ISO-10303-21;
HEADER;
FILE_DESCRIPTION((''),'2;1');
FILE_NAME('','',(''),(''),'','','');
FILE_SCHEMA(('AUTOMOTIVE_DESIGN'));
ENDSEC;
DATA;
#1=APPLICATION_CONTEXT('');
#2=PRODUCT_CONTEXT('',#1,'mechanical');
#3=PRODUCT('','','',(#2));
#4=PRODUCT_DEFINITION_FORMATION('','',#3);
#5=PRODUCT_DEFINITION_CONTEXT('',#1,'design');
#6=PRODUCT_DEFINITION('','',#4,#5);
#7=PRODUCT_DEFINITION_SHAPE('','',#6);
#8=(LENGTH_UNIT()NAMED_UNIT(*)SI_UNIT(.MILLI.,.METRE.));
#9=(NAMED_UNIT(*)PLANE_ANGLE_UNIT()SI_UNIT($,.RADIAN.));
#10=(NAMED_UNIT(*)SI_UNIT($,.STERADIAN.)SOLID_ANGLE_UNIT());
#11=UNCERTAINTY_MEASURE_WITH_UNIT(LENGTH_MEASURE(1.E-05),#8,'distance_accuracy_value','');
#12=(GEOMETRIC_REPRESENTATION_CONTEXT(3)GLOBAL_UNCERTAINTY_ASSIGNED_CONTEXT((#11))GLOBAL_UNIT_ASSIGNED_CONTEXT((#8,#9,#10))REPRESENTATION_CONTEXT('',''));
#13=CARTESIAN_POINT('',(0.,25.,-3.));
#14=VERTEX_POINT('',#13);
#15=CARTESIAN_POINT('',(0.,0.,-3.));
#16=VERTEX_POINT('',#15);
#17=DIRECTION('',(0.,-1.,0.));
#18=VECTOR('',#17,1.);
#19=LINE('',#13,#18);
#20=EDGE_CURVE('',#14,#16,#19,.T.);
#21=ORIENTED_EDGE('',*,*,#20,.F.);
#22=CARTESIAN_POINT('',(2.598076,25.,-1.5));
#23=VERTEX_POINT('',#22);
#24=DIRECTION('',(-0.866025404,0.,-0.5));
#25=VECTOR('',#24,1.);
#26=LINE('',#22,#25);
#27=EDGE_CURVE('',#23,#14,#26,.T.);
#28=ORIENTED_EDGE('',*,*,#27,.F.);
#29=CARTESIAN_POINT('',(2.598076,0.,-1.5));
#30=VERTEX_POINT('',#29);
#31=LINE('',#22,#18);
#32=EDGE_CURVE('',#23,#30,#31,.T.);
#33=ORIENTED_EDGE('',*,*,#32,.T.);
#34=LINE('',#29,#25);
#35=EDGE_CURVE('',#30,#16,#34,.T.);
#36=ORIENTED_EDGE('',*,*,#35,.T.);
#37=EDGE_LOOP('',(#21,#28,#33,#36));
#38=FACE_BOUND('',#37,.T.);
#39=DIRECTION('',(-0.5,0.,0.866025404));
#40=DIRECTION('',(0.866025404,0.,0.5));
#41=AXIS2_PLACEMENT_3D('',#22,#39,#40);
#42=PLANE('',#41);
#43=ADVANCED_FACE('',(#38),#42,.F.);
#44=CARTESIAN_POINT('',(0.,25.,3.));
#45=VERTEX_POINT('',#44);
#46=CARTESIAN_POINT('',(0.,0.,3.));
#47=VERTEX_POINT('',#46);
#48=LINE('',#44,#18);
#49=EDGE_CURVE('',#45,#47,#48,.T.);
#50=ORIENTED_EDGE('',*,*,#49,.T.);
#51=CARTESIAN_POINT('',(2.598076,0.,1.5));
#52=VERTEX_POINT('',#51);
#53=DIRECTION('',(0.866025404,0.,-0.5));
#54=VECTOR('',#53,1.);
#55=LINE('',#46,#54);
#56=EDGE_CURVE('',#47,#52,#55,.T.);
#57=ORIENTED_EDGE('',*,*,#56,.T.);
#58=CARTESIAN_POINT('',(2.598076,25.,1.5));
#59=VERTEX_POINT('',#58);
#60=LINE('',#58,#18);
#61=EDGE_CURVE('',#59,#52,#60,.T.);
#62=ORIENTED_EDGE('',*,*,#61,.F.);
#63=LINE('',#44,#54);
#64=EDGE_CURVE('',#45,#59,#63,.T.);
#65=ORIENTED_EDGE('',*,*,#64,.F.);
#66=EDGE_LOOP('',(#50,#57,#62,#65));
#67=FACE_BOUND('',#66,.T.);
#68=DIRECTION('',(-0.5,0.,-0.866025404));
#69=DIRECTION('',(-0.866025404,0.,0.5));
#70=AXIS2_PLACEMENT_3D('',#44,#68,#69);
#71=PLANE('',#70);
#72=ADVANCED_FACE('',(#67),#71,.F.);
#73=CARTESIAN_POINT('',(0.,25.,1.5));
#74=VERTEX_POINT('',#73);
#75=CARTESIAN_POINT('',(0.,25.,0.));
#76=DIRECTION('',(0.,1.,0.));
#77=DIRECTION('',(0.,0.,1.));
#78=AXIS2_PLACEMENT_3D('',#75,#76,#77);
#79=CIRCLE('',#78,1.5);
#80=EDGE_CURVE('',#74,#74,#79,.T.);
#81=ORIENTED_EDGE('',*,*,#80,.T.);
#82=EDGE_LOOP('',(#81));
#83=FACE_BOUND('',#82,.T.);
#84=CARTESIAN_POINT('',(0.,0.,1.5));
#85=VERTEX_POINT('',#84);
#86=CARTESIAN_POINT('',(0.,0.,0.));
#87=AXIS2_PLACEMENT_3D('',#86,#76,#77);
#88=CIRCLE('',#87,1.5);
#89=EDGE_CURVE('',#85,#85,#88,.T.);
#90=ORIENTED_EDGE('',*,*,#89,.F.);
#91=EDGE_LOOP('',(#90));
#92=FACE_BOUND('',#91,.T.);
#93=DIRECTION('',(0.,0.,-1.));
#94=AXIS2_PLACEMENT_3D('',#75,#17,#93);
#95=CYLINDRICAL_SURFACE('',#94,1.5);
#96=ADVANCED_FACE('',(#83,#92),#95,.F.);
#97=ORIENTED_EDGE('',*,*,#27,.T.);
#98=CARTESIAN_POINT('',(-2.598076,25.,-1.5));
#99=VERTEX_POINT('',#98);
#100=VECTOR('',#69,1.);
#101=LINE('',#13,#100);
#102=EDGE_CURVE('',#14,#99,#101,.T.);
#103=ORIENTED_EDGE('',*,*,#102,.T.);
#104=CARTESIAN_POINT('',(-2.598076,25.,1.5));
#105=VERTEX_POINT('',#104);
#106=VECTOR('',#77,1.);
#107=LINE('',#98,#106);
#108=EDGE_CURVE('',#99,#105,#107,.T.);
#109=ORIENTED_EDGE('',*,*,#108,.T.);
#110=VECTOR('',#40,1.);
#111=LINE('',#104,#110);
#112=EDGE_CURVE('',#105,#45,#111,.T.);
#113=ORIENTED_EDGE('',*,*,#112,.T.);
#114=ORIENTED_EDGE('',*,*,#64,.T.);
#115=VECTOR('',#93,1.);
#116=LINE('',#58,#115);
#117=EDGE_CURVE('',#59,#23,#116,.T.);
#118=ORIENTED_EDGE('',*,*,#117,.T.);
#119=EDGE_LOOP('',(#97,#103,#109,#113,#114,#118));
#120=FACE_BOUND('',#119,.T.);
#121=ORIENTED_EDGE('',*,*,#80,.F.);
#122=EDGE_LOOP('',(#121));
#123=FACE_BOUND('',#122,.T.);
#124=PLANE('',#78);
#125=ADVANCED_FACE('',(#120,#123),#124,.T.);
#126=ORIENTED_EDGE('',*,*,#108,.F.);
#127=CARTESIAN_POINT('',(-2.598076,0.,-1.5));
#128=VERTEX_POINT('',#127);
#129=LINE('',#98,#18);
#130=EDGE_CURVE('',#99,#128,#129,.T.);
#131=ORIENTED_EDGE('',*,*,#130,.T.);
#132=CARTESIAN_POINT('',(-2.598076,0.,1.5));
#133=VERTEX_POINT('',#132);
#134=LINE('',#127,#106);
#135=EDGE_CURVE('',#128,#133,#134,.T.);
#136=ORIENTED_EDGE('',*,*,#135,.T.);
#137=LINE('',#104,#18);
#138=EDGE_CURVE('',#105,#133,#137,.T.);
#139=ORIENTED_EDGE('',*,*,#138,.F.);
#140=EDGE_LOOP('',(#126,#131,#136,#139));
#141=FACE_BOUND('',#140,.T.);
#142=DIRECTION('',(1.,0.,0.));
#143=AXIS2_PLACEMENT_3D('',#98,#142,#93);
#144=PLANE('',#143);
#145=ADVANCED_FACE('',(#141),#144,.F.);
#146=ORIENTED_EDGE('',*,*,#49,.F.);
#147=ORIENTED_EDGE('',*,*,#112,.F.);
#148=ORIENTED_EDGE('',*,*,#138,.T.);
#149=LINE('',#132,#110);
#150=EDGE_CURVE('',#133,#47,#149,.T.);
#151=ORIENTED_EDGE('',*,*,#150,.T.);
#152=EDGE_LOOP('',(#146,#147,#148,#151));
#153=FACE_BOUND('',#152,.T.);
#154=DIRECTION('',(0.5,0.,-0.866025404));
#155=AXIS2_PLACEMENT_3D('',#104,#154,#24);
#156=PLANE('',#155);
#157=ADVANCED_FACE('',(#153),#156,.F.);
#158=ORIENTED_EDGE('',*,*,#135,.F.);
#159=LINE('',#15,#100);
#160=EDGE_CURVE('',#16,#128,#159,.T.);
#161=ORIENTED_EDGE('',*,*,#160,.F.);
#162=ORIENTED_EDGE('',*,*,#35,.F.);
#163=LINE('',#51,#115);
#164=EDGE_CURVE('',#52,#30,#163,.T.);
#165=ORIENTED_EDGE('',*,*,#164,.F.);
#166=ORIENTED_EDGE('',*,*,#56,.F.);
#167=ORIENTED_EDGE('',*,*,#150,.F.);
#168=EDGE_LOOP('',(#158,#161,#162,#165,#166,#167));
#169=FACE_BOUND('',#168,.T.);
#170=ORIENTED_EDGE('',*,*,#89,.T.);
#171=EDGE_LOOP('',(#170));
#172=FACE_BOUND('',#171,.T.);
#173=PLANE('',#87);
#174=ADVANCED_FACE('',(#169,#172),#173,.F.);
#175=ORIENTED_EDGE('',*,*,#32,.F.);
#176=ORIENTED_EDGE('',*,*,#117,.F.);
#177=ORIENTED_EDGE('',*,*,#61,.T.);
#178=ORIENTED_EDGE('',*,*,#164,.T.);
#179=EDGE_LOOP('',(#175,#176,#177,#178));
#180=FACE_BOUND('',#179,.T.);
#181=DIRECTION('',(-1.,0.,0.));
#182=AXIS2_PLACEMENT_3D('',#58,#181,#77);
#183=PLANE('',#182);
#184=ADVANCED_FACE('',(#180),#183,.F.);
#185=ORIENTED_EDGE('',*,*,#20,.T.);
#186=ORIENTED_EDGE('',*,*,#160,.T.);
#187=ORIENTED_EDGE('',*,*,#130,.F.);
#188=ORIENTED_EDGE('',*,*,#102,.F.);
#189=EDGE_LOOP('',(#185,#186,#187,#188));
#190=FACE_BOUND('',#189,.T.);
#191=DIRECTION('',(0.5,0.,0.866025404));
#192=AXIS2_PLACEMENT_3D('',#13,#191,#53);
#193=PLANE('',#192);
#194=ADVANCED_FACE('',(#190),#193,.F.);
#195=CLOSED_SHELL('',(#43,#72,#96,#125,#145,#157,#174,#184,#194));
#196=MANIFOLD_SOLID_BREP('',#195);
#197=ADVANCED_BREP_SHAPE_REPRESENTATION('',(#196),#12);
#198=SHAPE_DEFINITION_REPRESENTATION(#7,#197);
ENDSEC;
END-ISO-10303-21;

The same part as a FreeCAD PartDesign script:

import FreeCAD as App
import Part
import Sketcher

V = App.Vector
Q = App.Units.Quantity

doc = App.newDocument("Part")
body = doc.addObject("PartDesign::Body", "Body")

# Sketch on XZ plane
sketch1 = body.newObject("Sketcher::SketchObject", "Sketch")
sketch1.AttachmentSupport = (doc.getObject("XZ_Plane"), [""])
sketch1.MapMode = "FlatFace"
sketch1.addGeometry([
    Part.LineSegment(V(0, -3, 0), V(-2.6, -1.5, 0)),  # 0
    Part.LineSegment(V(-2.6, -1.5, 0), V(-2.6, 1.5, 0)),  # 1
    Part.LineSegment(V(-2.6, 1.5, 0), V(0, 3, 0)),  # 2
    Part.LineSegment(V(0, 3, 0), V(2.6, 1.5, 0)),  # 3
    Part.LineSegment(V(2.6, 1.5, 0), V(2.6, -1.5, 0)),  # 4
    Part.LineSegment(V(2.6, -1.5, 0), V(0, -3, 0)),  # 5
    Part.Circle(V(0, 0, 0), V(0, 0, 1), 1.5),  # 6
], False)
sketch1.addConstraint([
    Sketcher.Constraint("Coincident", 0, 2, 1, 1),
    Sketcher.Constraint("Coincident", 1, 2, 2, 1),
    Sketcher.Constraint("Coincident", 2, 2, 3, 1),
    Sketcher.Constraint("Coincident", 3, 2, 4, 1),
    Sketcher.Constraint("Coincident", 4, 2, 5, 1),
    Sketcher.Constraint("Coincident", 5, 2, 0, 1),
    Sketcher.Constraint("Vertical", 1),
    Sketcher.Constraint("Vertical", 4),
    Sketcher.Constraint("Coincident", 6, 3, -1, 1),
    Sketcher.Constraint("Symmetric", 0, 2, 3, 2, -1, 1),
    Sketcher.Constraint("Symmetric", 2, 2, 5, 2, -1, 1),
    Sketcher.Constraint("PointOnObject", 2, 2, -2),
    Sketcher.Constraint("Parallel", 2, 5),
    Sketcher.Constraint("Horizontal", 1, 2, 3, 2),
    Sketcher.Constraint("Diameter", 6, Q("3 mm")),
    Sketcher.Constraint("DistanceY", 1, 1, 1, 2, Q("3 mm")),
    Sketcher.Constraint("Angle", 0, Q("150 deg")),
    Sketcher.Constraint("Distance", 0, Q("3 mm")),
])
pad1 = body.newObject("PartDesign::Pad", "Pad")
pad1.Profile = sketch1
pad1.Length = 25
pad1.Reversed = True

doc.recompute()
